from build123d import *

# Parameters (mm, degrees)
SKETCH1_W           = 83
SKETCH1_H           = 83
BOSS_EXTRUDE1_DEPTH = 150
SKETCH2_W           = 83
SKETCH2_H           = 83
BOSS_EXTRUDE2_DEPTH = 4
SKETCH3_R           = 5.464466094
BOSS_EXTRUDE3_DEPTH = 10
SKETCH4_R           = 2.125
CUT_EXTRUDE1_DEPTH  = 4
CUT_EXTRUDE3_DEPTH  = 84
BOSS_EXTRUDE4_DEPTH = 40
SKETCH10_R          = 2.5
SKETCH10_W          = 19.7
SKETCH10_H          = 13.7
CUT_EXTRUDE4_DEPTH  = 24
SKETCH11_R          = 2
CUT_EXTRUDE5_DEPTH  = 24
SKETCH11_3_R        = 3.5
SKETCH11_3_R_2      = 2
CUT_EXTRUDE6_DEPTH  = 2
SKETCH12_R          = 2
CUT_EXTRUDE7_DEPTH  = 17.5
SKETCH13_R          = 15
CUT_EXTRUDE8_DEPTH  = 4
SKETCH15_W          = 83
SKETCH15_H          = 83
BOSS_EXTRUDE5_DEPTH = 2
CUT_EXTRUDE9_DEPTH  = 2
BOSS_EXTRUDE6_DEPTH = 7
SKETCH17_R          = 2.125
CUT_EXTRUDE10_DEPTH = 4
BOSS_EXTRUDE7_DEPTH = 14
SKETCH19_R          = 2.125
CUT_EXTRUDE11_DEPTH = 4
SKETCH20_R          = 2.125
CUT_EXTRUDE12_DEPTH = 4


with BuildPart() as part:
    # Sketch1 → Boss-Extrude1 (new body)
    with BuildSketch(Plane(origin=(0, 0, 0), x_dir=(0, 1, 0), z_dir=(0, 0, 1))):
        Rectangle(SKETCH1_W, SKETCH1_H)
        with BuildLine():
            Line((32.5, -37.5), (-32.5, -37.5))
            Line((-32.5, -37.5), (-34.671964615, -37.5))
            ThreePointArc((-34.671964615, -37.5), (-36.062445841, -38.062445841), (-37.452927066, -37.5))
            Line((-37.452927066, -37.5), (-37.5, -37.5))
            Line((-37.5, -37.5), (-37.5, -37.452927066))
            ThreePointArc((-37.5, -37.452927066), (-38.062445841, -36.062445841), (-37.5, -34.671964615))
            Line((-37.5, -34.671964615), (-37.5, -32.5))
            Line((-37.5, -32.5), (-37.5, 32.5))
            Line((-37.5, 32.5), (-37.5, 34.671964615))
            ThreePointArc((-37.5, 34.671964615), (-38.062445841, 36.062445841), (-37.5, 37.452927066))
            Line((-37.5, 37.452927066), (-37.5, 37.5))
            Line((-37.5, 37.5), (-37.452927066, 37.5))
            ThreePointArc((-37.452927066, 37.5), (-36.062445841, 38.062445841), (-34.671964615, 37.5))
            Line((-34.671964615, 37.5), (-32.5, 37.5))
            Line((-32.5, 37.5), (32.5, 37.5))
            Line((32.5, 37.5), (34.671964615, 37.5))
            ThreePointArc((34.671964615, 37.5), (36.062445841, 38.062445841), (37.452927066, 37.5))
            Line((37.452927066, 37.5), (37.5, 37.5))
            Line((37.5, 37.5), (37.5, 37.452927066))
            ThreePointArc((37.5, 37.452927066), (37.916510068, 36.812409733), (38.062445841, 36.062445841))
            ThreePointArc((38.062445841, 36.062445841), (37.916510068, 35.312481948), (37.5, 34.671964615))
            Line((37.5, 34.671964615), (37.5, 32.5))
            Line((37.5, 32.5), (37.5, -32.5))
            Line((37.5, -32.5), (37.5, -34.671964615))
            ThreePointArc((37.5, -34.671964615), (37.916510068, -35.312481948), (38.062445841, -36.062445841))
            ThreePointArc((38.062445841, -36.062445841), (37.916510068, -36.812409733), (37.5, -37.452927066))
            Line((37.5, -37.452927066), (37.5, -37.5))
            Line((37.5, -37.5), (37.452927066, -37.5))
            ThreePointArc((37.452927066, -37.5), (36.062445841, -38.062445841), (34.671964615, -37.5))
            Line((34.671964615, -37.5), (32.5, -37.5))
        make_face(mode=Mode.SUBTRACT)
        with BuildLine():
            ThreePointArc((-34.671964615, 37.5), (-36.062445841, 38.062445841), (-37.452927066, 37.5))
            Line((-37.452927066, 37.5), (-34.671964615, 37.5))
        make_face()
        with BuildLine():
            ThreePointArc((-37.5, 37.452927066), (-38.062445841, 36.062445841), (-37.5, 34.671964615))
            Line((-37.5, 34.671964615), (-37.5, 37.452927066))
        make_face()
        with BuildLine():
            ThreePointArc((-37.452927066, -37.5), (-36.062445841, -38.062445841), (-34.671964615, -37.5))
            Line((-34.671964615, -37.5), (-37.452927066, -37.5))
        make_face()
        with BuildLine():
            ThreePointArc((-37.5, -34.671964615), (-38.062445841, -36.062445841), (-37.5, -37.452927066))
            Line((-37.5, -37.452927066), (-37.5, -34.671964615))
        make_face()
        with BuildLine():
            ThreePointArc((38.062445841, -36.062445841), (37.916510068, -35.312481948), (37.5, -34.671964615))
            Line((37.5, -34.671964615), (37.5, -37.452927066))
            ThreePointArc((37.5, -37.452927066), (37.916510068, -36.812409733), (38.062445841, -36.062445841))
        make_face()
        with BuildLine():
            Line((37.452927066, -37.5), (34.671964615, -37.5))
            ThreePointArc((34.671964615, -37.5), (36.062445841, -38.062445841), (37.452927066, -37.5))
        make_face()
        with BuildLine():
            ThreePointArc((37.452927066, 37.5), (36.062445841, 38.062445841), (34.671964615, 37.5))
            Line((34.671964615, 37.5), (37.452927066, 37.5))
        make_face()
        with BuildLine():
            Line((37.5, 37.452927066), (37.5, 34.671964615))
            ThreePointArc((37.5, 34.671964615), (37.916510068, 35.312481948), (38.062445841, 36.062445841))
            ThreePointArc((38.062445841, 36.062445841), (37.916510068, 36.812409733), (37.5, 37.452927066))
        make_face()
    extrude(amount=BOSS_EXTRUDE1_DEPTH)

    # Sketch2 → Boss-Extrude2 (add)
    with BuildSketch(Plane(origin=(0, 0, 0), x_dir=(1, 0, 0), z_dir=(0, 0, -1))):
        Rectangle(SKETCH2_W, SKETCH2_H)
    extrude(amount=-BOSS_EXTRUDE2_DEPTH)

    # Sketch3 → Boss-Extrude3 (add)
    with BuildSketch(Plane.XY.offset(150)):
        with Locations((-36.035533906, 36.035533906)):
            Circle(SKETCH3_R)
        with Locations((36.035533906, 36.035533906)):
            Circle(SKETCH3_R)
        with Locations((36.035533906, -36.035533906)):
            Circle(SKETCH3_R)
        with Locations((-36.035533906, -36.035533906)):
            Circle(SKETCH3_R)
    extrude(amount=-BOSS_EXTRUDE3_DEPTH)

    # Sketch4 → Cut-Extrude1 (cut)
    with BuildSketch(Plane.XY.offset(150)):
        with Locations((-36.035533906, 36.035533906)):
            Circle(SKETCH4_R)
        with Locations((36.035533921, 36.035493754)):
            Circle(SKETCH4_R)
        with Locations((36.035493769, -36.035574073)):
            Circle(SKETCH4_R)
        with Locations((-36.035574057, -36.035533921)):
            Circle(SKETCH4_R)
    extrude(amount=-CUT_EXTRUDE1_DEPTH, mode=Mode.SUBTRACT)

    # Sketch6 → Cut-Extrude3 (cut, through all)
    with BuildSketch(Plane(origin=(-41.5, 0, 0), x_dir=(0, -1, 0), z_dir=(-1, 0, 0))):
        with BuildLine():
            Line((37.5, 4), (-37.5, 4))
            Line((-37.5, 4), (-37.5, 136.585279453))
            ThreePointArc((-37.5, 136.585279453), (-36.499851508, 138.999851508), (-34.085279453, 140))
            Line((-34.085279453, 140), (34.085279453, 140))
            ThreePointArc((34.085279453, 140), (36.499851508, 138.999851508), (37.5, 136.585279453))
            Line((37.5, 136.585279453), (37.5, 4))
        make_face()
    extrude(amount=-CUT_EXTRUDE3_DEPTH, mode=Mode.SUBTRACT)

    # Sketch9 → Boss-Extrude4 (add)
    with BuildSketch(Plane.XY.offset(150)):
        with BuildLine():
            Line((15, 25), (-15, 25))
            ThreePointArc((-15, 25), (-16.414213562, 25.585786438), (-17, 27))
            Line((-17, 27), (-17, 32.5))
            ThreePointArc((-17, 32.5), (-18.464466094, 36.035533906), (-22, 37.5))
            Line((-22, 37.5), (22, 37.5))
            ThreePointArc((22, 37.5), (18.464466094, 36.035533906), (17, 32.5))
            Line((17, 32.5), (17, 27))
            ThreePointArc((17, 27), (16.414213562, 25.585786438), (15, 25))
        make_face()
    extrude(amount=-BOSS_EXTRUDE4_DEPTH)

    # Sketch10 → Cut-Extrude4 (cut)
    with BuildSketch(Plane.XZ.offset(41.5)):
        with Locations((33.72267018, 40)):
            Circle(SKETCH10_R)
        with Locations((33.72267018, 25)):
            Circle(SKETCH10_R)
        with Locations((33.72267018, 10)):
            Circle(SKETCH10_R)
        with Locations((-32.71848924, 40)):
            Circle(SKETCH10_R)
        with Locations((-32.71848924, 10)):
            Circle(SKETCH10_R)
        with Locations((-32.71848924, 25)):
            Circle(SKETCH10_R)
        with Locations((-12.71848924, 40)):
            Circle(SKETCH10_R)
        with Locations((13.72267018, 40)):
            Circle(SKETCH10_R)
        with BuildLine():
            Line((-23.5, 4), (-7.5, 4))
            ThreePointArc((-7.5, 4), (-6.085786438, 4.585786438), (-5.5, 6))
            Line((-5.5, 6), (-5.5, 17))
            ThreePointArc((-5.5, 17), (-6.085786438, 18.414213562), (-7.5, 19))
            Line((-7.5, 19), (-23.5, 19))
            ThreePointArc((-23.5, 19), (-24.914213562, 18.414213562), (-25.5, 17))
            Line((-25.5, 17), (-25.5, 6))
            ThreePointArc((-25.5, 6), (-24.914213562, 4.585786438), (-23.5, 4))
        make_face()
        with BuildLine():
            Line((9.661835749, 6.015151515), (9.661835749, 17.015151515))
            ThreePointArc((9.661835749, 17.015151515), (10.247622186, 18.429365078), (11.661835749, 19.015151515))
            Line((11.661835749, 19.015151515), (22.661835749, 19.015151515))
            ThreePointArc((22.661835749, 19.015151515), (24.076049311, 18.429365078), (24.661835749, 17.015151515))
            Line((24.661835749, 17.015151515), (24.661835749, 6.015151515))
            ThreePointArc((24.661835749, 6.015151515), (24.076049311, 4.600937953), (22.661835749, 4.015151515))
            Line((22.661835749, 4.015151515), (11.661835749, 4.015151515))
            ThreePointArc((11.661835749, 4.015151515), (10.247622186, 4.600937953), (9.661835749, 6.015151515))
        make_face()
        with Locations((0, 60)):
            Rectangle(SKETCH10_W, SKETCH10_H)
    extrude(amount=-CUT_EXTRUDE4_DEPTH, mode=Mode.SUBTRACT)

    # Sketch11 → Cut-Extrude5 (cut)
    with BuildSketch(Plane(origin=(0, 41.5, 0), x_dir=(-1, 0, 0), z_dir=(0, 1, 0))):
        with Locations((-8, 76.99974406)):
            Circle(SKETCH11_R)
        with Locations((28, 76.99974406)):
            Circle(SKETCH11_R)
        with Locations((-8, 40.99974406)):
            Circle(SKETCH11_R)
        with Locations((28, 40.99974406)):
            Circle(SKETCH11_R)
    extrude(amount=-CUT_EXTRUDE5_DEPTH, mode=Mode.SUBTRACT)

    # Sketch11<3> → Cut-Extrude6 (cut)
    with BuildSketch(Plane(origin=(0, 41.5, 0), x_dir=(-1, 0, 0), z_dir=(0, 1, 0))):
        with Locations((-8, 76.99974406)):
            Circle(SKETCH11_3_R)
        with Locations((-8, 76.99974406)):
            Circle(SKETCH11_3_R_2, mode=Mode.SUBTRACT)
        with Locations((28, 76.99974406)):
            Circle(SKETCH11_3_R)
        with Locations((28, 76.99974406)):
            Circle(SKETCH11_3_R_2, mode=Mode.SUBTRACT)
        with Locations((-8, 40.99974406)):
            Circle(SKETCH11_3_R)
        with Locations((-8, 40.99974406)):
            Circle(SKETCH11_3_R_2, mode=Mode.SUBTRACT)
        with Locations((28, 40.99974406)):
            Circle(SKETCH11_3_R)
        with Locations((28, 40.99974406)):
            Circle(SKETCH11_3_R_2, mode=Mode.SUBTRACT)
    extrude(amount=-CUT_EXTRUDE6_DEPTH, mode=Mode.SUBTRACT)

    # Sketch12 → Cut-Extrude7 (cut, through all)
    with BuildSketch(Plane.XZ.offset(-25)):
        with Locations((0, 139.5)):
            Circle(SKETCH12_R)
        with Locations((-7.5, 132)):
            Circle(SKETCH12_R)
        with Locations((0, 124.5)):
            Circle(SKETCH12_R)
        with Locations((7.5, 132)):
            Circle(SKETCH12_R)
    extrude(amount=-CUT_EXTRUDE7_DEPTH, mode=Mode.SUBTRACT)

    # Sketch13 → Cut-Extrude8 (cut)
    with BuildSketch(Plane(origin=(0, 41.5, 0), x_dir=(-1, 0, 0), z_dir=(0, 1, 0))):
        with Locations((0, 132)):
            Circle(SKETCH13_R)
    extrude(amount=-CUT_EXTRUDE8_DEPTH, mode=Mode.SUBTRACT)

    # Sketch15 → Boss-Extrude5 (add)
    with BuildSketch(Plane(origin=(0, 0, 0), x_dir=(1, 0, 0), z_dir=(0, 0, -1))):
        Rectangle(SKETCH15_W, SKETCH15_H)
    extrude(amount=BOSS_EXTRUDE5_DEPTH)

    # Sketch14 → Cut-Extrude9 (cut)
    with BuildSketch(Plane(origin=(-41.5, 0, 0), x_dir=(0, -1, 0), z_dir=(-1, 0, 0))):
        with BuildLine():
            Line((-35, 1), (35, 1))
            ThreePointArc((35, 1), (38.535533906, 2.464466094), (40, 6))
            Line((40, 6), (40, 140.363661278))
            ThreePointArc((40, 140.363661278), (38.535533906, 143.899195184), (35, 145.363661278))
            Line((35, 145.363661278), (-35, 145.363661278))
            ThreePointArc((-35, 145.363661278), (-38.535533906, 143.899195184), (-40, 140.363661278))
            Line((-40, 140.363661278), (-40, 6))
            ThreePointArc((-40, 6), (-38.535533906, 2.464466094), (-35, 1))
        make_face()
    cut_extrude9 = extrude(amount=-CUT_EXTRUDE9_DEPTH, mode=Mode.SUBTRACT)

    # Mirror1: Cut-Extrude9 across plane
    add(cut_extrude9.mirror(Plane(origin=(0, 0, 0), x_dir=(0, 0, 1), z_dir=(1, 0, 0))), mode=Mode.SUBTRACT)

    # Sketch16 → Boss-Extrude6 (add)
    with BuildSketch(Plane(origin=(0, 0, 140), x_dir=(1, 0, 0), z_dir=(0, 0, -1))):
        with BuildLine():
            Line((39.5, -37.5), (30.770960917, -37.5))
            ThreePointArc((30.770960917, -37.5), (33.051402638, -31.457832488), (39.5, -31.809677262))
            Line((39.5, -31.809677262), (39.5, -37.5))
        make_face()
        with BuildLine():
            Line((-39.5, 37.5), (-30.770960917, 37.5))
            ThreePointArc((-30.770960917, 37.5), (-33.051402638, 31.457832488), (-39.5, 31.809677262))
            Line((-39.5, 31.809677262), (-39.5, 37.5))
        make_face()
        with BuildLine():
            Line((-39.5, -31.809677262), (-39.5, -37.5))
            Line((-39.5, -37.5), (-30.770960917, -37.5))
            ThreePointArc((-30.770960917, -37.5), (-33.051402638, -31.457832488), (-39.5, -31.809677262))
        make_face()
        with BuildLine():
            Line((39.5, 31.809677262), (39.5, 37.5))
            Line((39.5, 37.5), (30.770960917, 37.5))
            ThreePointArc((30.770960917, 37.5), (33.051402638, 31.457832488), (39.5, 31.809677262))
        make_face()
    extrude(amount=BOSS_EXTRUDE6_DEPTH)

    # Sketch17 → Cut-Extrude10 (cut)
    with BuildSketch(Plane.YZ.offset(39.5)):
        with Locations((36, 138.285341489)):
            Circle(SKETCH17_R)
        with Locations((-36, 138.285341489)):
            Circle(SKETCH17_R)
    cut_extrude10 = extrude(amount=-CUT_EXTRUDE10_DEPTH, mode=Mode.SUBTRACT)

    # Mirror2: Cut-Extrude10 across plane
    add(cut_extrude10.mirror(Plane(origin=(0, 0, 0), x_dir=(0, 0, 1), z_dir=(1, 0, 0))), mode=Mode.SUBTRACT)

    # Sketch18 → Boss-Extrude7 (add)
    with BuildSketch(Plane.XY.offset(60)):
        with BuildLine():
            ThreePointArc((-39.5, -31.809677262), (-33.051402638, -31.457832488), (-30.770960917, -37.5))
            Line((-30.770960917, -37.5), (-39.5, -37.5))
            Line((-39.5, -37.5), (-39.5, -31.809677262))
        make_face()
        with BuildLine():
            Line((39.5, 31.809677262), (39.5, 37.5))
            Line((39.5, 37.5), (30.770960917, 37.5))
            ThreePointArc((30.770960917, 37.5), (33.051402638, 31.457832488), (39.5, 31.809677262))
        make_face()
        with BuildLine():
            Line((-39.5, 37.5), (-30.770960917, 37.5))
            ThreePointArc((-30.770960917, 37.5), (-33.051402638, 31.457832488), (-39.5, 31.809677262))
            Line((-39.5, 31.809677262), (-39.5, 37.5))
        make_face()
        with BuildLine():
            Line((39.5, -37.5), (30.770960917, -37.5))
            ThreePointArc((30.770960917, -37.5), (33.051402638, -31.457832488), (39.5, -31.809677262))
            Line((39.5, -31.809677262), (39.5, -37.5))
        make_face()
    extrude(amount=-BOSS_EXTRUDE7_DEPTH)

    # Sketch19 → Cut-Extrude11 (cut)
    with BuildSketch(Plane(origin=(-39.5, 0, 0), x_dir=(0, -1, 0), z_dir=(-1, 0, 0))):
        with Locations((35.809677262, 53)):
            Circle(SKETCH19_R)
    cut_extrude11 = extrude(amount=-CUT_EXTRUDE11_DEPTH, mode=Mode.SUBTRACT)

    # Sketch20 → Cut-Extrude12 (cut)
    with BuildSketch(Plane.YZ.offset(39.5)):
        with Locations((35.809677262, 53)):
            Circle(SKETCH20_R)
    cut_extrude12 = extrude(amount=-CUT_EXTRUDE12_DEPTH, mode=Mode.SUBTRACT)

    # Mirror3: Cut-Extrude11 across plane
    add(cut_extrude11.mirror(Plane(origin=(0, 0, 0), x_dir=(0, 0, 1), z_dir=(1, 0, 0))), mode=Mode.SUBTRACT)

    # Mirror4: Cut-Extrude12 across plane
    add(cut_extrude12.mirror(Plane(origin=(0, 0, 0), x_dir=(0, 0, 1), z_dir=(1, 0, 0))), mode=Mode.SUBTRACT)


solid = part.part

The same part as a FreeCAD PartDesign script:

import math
import FreeCAD as App
import Part
import Sketcher

V = App.Vector


def add_polygon(sketch, points):
    """Adds a closed chain of lines whose ends are joined by coincident constraints."""
    first, n = sketch.GeometryCount, len(points)
    for a, b in zip(points, points[1:] + points[:1]):
        sketch.addGeometry(Part.LineSegment(App.Vector(*a, 0), App.Vector(*b, 0)), False)
    for i in range(n):
        sketch.addConstraint(Sketcher.Constraint("Coincident", first + i, 2, first + (i + 1) % n, 1))

doc = App.newDocument("Part")
body = doc.addObject("PartDesign::Body", "Body")

# Sketch on XY plane
sketch1 = body.newObject("Sketcher::SketchObject", "Sketch")
sketch1.AttachmentSupport = (doc.getObject("XY_Plane"), [""])
sketch1.MapMode = "FlatFace"
add_polygon(sketch1, [(-42, -42), (42, -42), (42, 42), (-42, 42)])  # lines 0-3
add_polygon(sketch1, [(38, -38), (-38, -38), (-38, 38), (38, 38)])  # lines 4-7
sketch1.addConstraint(Sketcher.Constraint("Horizontal", 0))
sketch1.addConstraint(Sketcher.Constraint("Vertical", 1))
sketch1.addConstraint(Sketcher.Constraint("Horizontal", 2))
sketch1.addConstraint(Sketcher.Constraint("Vertical", 3))
sketch1.addConstraint(Sketcher.Constraint("Horizontal", 4))
sketch1.addConstraint(Sketcher.Constraint("Vertical", 5))
sketch1.addConstraint(Sketcher.Constraint("Horizontal", 6))
sketch1.addConstraint(Sketcher.Constraint("Vertical", 7))
sketch1.addConstraint(Sketcher.Constraint("Symmetric", 0, 2, 2, 2, -1, 1))
sketch1.addConstraint(Sketcher.Constraint("Symmetric", 4, 2, 6, 2, -1, 1))
sketch1.addConstraint(Sketcher.Constraint("Equal", 2, 1))
sketch1.addConstraint(Sketcher.Constraint("Equal", 6, 5))
sketch1.addConstraint(Sketcher.Constraint("DistanceX", 0, 1, 0, 2, 83.0))
sketch1.addConstraint(Sketcher.Constraint("DistanceX", 4, 2, 4, 1, 75.0))
pad1 = body.newObject("PartDesign::Pad", "Pad")
pad1.Profile = sketch1
pad1.Length = 150

# Sketch on XY plane
sketch2 = body.newObject("Sketcher::SketchObject", "Sketch001")
sketch2.AttachmentSupport = (doc.getObject("XY_Plane"), [""])
sketch2.MapMode = "FlatFace"
add_polygon(sketch2, [(-42, -42), (-42, 42), (42, 42), (42, -42)])  # lines 0-3
sketch2.addConstraint(Sketcher.Constraint("Vertical", 0))
sketch2.addConstraint(Sketcher.Constraint("Horizontal", 1))
sketch2.addConstraint(Sketcher.Constraint("Vertical", 2))
sketch2.addConstraint(Sketcher.Constraint("Horizontal", 3))
sketch2.addConstraint(Sketcher.Constraint("Symmetric", 0, 2, 2, 2, -1, 1))
sketch2.addConstraint(Sketcher.Constraint("Equal", 3, 0))
sketch2.addConstraint(Sketcher.Constraint("DistanceX", 1, 1, 1, 2, 83.0))
pad2 = body.newObject("PartDesign::Pad", "Pad001")
pad2.Profile = sketch2
pad2.Length = 4

# Sketch on XY plane
sketch3 = body.newObject("Sketcher::SketchObject", "Sketch002")
sketch3.AttachmentSupport = (doc.getObject("XY_Plane"), [""])
sketch3.MapMode = "FlatFace"
sketch3.AttachmentOffset = App.Placement(V(0, 0, 150), App.Rotation())
sketch3.addGeometry(Part.Circle(V(-36, 36, 0), V(0, 0, 1), 5), False)
sketch3.addGeometry(Part.Circle(V(36, 36, 0), V(0, 0, 1), 5), False)
sketch3.addGeometry(Part.Circle(V(36, -36, 0), V(0, 0, 1), 5), False)
sketch3.addGeometry(Part.Circle(V(-36, -36, 0), V(0, 0, 1), 5), False)
sketch3.addConstraint(Sketcher.Constraint("Equal", 0, 1))
sketch3.addConstraint(Sketcher.Constraint("Equal", 1, 2))
sketch3.addConstraint(Sketcher.Constraint("Equal", 2, 3))
sketch3.addConstraint(Sketcher.Constraint("Symmetric", 0, 3, 2, 3, -1, 1))
sketch3.addConstraint(Sketcher.Constraint("Symmetric", 1, 3, 3, 3, -1, 1))
sketch3.addConstraint(Sketcher.Constraint("Symmetric", 0, 3, 1, 3, -2))
sketch3.addConstraint(Sketcher.Constraint("Diameter", 0, 10.928932))
sketch3.addConstraint(Sketcher.Constraint("DistanceX", 0, 3, -1, 1, 36.035534))
sketch3.addConstraint(Sketcher.Constraint("DistanceY", -1, 1, 0, 3, 36.035534))
pad3 = body.newObject("PartDesign::Pad", "Pad002")
pad3.Profile = sketch3
pad3.Length = 10
pad3.Reversed = True

# Sketch on XY plane
sketch4 = body.newObject("Sketcher::SketchObject", "Sketch003")
sketch4.AttachmentSupport = (doc.getObject("XY_Plane"), [""])
sketch4.MapMode = "FlatFace"
sketch4.AttachmentOffset = App.Placement(V(0, 0, 150), App.Rotation())
sketch4.addGeometry(Part.Circle(V(-36, 36, 0), V(0, 0, 1), 2.1), False)
sketch4.addGeometry(Part.Circle(V(36, 36, 0), V(0, 0, 1), 2.1), False)
sketch4.addGeometry(Part.Circle(V(36, -36, 0), V(0, 0, 1), 2.1), False)
sketch4.addGeometry(Part.Circle(V(-36, -36, 0), V(0, 0, 1), 2.1), False)
sketch4.addConstraint(Sketcher.Constraint("Equal", 0, 1))
sketch4.addConstraint(Sketcher.Constraint("Equal", 1, 2))
sketch4.addConstraint(Sketcher.Constraint("Equal", 2, 3))
sketch4.addConstraint(Sketcher.Constraint("Diameter", 0, 4.25))
sketch4.addConstraint(Sketcher.Constraint("DistanceX", 0, 3, -1, 1, 36.035534))
sketch4.addConstraint(Sketcher.Constraint("DistanceY", -1, 1, 0, 3, 36.035534))
sketch4.addConstraint(Sketcher.Constraint("DistanceX", -1, 1, 1, 3, 36.035534))
sketch4.addConstraint(Sketcher.Constraint("DistanceY", -1, 1, 1, 3, 36.035494))
sketch4.addConstraint(Sketcher.Constraint("DistanceX", -1, 1, 2, 3, 36.035494))
sketch4.addConstraint(Sketcher.Constraint("DistanceY", 2, 3, -1, 1, 36.035574))
sketch4.addConstraint(Sketcher.Constraint("DistanceX", 3, 3, -1, 1, 36.035574))
sketch4.addConstraint(Sketcher.Constraint("DistanceY", 3, 3, -1, 1, 36.035534))
pocket1 = body.newObject("PartDesign::Pocket", "Pocket")
pocket1.Profile = sketch4
pocket1.Length = 4

# Sketch on YZ plane
sketch5 = body.newObject("Sketcher::SketchObject", "Sketch004")
sketch5.AttachmentSupport = (doc.getObject("YZ_Plane"), [""])
sketch5.MapMode = "FlatFace"
sketch5.AttachmentOffset = App.Placement(V(0, 0, -41.5), App.Rotation())
sketch5.addGeometry(Part.LineSegment(V(37.5, 4, 0), V(-37.5, 4, 0)), False)
sketch5.addGeometry(Part.LineSegment(V(-37.5, 4, 0), V(-37.5, 136.6, 0)), False)
sketch5.addGeometry(Part.ArcOfCircle(Part.Circle(V(-34.1, 136.6, 0), V(0, 0, 1), 3.4), math.radians(90), math.radians(180)), False)
sketch5.addGeometry(Part.LineSegment(V(-34.1, 140, 0), V(34.1, 140, 0)), False)
sketch5.addGeometry(Part.ArcOfCircle(Part.Circle(V(34.1, 136.6, 0), V(0, 0, 1), 3.4), math.radians(0), math.radians(90)), False)
sketch5.addGeometry(Part.LineSegment(V(37.5, 136.6, 0), V(37.5, 4, 0)), False)
sketch5.addConstraint(Sketcher.Constraint("Coincident", 0, 2, 1, 1))
sketch5.addConstraint(Sketcher.Constraint("Tangent", 1, 2, 2, 2))
sketch5.addConstraint(Sketcher.Constraint("Tangent", 2, 1, 3, 1))
sketch5.addConstraint(Sketcher.Constraint("Tangent", 3, 2, 4, 2))
sketch5.addConstraint(Sketcher.Constraint("Tangent", 4, 1, 5, 1))
sketch5.addConstraint(Sketcher.Constraint("Coincident", 5, 2, 0, 1))
sketch5.addConstraint(Sketcher.Constraint("Horizontal", 0))
sketch5.addConstraint(Sketcher.Constraint("Vertical", 1))
sketch5.addConstraint(Sketcher.Constraint("Horizontal", 3))
sketch5.addConstraint(Sketcher.Constraint("Vertical", 5))
sketch5.addConstraint(Sketcher.Constraint("Equal", 2, 4))
sketch5.addConstraint(Sketcher.Constraint("DistanceX", 0, 2, 0, 1, 75.0))
sketch5.addConstraint(Sketcher.Constraint("DistanceY", -1, 1, 0, 2, 4.0))
sketch5.addConstraint(Sketcher.Constraint("DistanceY", -1, 1, 2, 1, 140.0))
sketch5.addConstraint(Sketcher.Constraint("DistanceX", 0, 2, -1, 1, 37.5))
sketch5.addConstraint(Sketcher.Constraint("Radius", 2, 3.414721))
pocket2 = body.newObject("PartDesign::Pocket", "Pocket001")
pocket2.Profile = sketch5
pocket2.Type = "ThroughAll"
pocket2.Reversed = True

# Sketch on XY plane
sketch6 = body.newObject("Sketcher::SketchObject", "Sketch005")
sketch6.AttachmentSupport = (doc.getObject("XY_Plane"), [""])
sketch6.MapMode = "FlatFace"
sketch6.AttachmentOffset = App.Placement(V(0, 0, 150), App.Rotation())
sketch6.addGeometry(Part.LineSegment(V(-15, 25, 0), V(15, 25, 0)), False)
sketch6.addGeometry(Part.ArcOfCircle(Part.Circle(V(15, 27, 0), V(0, 0, 1), 2), math.radians(-90), math.radians(0)), False)
sketch6.addGeometry(Part.LineSegment(V(17, 27, 0), V(17, 32.5, 0)), False)
sketch6.addGeometry(Part.ArcOfCircle(Part.Circle(V(22, 32.5, 0), V(0, 0, 1), 5), math.radians(90), math.radians(180)), False)
sketch6.addGeometry(Part.LineSegment(V(22, 37.5, 0), V(-22, 37.5, 0)), False)
sketch6.addGeometry(Part.ArcOfCircle(Part.Circle(V(-22, 32.5, 0), V(0, 0, 1), 5), math.radians(0), math.radians(90)), False)
sketch6.addGeometry(Part.LineSegment(V(-17, 32.5, 0), V(-17, 27, 0)), False)
sketch6.addGeometry(Part.ArcOfCircle(Part.Circle(V(-15, 27, 0), V(0, 0, 1), 2), math.radians(-180), math.radians(-90)), False)
sketch6.addConstraint(Sketcher.Constraint("Tangent", 0, 2, 1, 1))
sketch6.addConstraint(Sketcher.Constraint("Tangent", 1, 2, 2, 1))
sketch6.addConstraint(Sketcher.Constraint("Tangent", 2, 2, 3, 2))
sketch6.addConstraint(Sketcher.Constraint("Tangent", 3, 1, 4, 1))
sketch6.addConstraint(Sketcher.Constraint("Tangent", 4, 2, 5, 2))
sketch6.addConstraint(Sketcher.Constraint("Tangent", 5, 1, 6, 1))
sketch6.addConstraint(Sketcher.Constraint("Tangent", 6, 2, 7, 1))
sketch6.addConstraint(Sketcher.Constraint("Tangent", 7, 2, 0, 1))
sketch6.addConstraint(Sketcher.Constraint("Horizontal", 0))
sketch6.addConstraint(Sketcher.Constraint("Vertical", 2))
sketch6.addConstraint(Sketcher.Constraint("Horizontal", 4))
sketch6.addConstraint(Sketcher.Constraint("Vertical", 6))
sketch6.addConstraint(Sketcher.Constraint("Equal", 3, 5))
sketch6.addConstraint(Sketcher.Constraint("Equal", 1, 7))
sketch6.addConstraint(Sketcher.Constraint("Radius", 1, 2.0))
sketch6.addConstraint(Sketcher.Constraint("Radius", 3, 5.0))
sketch6.addConstraint(Sketcher.Constraint("DistanceX", 0, 1, 0, 2, 30.0))
sketch6.addConstraint(Sketcher.Constraint("DistanceY", 2, 1, 2, 2, 5.5))
sketch6.addConstraint(Sketcher.Constraint("DistanceX", -1, 1, 1, 3, 15.0))
sketch6.addConstraint(Sketcher.Constraint("DistanceY", -1, 1, 1, 3, 27.0))
pad4 = body.newObject("PartDesign::Pad", "Pad003")
pad4.Profile = sketch6
pad4.Length = 40
pad4.Reversed = True

# Sketch on XZ plane
sketch7 = body.newObject("Sketcher::SketchObject", "Sketch006")
sketch7.AttachmentSupport = (doc.getObject("XZ_Plane"), [""])
sketch7.MapMode = "FlatFace"
sketch7.AttachmentOffset = App.Placement(V(0, 0, 41.5), App.Rotation())
sketch7.addGeometry(Part.Circle(V(33.7, 40, 0), V(0, 0, 1), 2.5), False)  # 0
sketch7.addGeometry(Part.Circle(V(33.7, 25, 0), V(0, 0, 1), 2.5), False)  # 1
sketch7.addGeometry(Part.Circle(V(33.7, 10, 0), V(0, 0, 1), 2.5), False)  # 2
sketch7.addGeometry(Part.Circle(V(-32.7, 40, 0), V(0, 0, 1), 2.5), False)  # 3
sketch7.addGeometry(Part.Circle(V(-32.7, 10, 0), V(0, 0, 1), 2.5), False)  # 4
sketch7.addGeometry(Part.Circle(V(-32.7, 25, 0), V(0, 0, 1), 2.5), False)  # 5
sketch7.addGeometry(Part.Circle(V(-12.7, 40, 0), V(0, 0, 1), 2.5), False)  # 6
sketch7.addGeometry(Part.Circle(V(13.7, 40, 0), V(0, 0, 1), 2.5), False)  # 7
sketch7.addGeometry(Part.LineSegment(V(-23.5, 4, 0), V(-7.5, 4, 0)), False)  # 8
sketch7.addGeometry(Part.ArcOfCircle(Part.Circle(V(-7.5, 6, 0), V(0, 0, 1), 2), math.radians(-90), math.radians(0)), False)  # 9
sketch7.addGeometry(Part.LineSegment(V(-5.5, 6, 0), V(-5.5, 17, 0)), False)  # 10
sketch7.addGeometry(Part.ArcOfCircle(Part.Circle(V(-7.5, 17, 0), V(0, 0, 1), 2), math.radians(0), math.radians(90)), False)  # 11
sketch7.addGeometry(Part.LineSegment(V(-7.5, 19, 0), V(-23.5, 19, 0)), False)  # 12
sketch7.addGeometry(Part.ArcOfCircle(Part.Circle(V(-23.5, 17, 0), V(0, 0, 1), 2), math.radians(90), math.radians(180)), False)  # 13
sketch7.addGeometry(Part.LineSegment(V(-25.5, 17, 0), V(-25.5, 6, 0)), False)  # 14
sketch7.addGeometry(Part.ArcOfCircle(Part.Circle(V(-23.5, 6, 0), V(0, 0, 1), 2), math.radians(-180), math.radians(-90)), False)  # 15
sketch7.addGeometry(Part.LineSegment(V(9.7, 17, 0), V(9.7, 6, 0)), False)  # 16
sketch7.addGeometry(Part.ArcOfCircle(Part.Circle(V(11.7, 6, 0), V(0, 0, 1), 2), math.radians(180), math.radians(270)), False)  # 17
sketch7.addGeometry(Part.LineSegment(V(11.7, 4, 0), V(22.7, 4, 0)), False)  # 18
sketch7.addGeometry(Part.ArcOfCircle(Part.Circle(V(22.7, 6, 0), V(0, 0, 1), 2), math.radians(-90), math.radians(0)), False)  # 19
sketch7.addGeometry(Part.LineSegment(V(24.7, 6, 0), V(24.7, 17, 0)), False)  # 20
sketch7.addGeometry(Part.ArcOfCircle(Part.Circle(V(22.7, 17, 0), V(0, 0, 1), 2), math.radians(0), math.radians(90)), False)  # 21
sketch7.addGeometry(Part.LineSegment(V(22.7, 19, 0), V(11.7, 19, 0)), False)  # 22
sketch7.addGeometry(Part.ArcOfCircle(Part.Circle(V(11.7, 17, 0), V(0, 0, 1), 2), math.radians(90), math.radians(180)), False)  # 23
add_polygon(sketch7, [(-9.8, 66.8), (-9.8, 53.1), (9.8, 53.1), (9.8, 66.8)])  # lines 24-27
sketch7.addConstraint(Sketcher.Constraint("Tangent", 8, 2, 9, 1))
sketch7.addConstraint(Sketcher.Constraint("Tangent", 9, 2, 10, 1))
sketch7.addConstraint(Sketcher.Constraint("Tangent", 10, 2, 11, 1))
sketch7.addConstraint(Sketcher.Constraint("Tangent", 11, 2, 12, 1))
sketch7.addConstraint(Sketcher.Constraint("Tangent", 12, 2, 13, 1))
sketch7.addConstraint(Sketcher.Constraint("Tangent", 13, 2, 14, 1))
sketch7.addConstraint(Sketcher.Constraint("Tangent", 14, 2, 15, 1))
sketch7.addConstraint(Sketcher.Constraint("Tangent", 15, 2, 8, 1))
sketch7.addConstraint(Sketcher.Constraint("Tangent", 16, 2, 17, 1))
sketch7.addConstraint(Sketcher.Constraint("Tangent", 17, 2, 18, 1))
sketch7.addConstraint(Sketcher.Constraint("Tangent", 18, 2, 19, 1))
sketch7.addConstraint(Sketcher.Constraint("Tangent", 19, 2, 20, 1))
sketch7.addConstraint(Sketcher.Constraint("Tangent", 20, 2, 21, 1))
sketch7.addConstraint(Sketcher.Constraint("Tangent", 21, 2, 22, 1))
sketch7.addConstraint(Sketcher.Constraint("Tangent", 22, 2, 23, 1))
sketch7.addConstraint(Sketcher.Constraint("Tangent", 23, 2, 16, 1))
sketch7.addConstraint(Sketcher.Constraint("Horizontal", 8))
sketch7.addConstraint(Sketcher.Constraint("Vertical", 10))
sketch7.addConstraint(Sketcher.Constraint("Horizontal", 12))
sketch7.addConstraint(Sketcher.Constraint("Vertical", 14))
sketch7.addConstraint(Sketcher.Constraint("Vertical", 16))
sketch7.addConstraint(Sketcher.Constraint("Horizontal", 18))
sketch7.addConstraint(Sketcher.Constraint("Vertical", 20))
sketch7.addConstraint(Sketcher.Constraint("Horizontal", 22))
sketch7.addConstraint(Sketcher.Constraint("Vertical", 24))
sketch7.addConstraint(Sketcher.Constraint("Horizontal", 25))
sketch7.addConstraint(Sketcher.Constraint("Vertical", 26))
sketch7.addConstraint(Sketcher.Constraint("Horizontal", 27))
sketch7.addConstraint(Sketcher.Constraint("Equal", 0, 1))
sketch7.addConstraint(Sketcher.Constraint("Equal", 1, 2))
sketch7.addConstraint(Sketcher.Constraint("Equal", 2, 3))
sketch7.addConstraint(Sketcher.Constraint("Equal", 3, 4))
sketch7.addConstraint(Sketcher.Constraint("Equal", 4, 5))
sketch7.addConstraint(Sketcher.Constraint("Equal", 5, 6))
sketch7.addConstraint(Sketcher.Constraint("Equal", 6, 7))
sketch7.addConstraint(Sketcher.Constraint("Equal", 9, 11))
sketch7.addConstraint(Sketcher.Constraint("Equal", 11, 13))
sketch7.addConstraint(Sketcher.Constraint("Equal", 13, 15))
sketch7.addConstraint(Sketcher.Constraint("Equal", 15, 17))
sketch7.addConstraint(Sketcher.Constraint("Equal", 17, 19))
sketch7.addConstraint(Sketcher.Constraint("Equal", 19, 21))
sketch7.addConstraint(Sketcher.Constraint("Equal", 21, 23))
sketch7.addConstraint(Sketcher.Constraint("Horizontal", 0, 3, 3, 3))
sketch7.addConstraint(Sketcher.Constraint("Horizontal", 2, 3, 4, 3))
sketch7.addConstraint(Sketcher.Constraint("Horizontal", 1, 3, 5, 3))
sketch7.addConstraint(Sketcher.Constraint("Horizontal", 3, 3, 6, 3))
sketch7.addConstraint(Sketcher.Constraint("Horizontal", 6, 3, 7, 3))
sketch7.addConstraint(Sketcher.Constraint("Vertical", 0, 3, 1, 3))
sketch7.addConstraint(Sketcher.Constraint("Vertical", 1, 3, 2, 3))
sketch7.addConstraint(Sketcher.Constraint("Vertical", 3, 3, 4, 3))
sketch7.addConstraint(Sketcher.Constraint("Vertical", 4, 3, 5, 3))
sketch7.addConstraint(Sketcher.Constraint("Equal", 22, 10))
sketch7.addConstraint(Sketcher.Constraint("Equal", 14, 16))
sketch7.addConstraint(Sketcher.Constraint("Diameter", 0, 5.0))
sketch7.addConstraint(Sketcher.Constraint("Radius", 9, 2.0))
sketch7.addConstraint(Sketcher.Constraint("DistanceX", 8, 1, 8, 2, 16.0))
sketch7.addConstraint(Sketcher.Constraint("DistanceX", 18, 1, 18, 2, 11.0))
sketch7.addConstraint(Sketcher.Constraint("DistanceX", 25, 1, 25, 2, 19.7))
sketch7.addConstraint(Sketcher.Constraint("DistanceY", 24, 2, 24, 1, 13.7))
sketch7.addConstraint(Sketcher.Constraint("DistanceY", -1, 1, 0, 3, 40.0))
sketch7.addConstraint(Sketcher.Constraint("DistanceY", -1, 1, 1, 3, 25.0))
sketch7.addConstraint(Sketcher.Constraint("DistanceY", -1, 1, 2, 3, 10.0))
sketch7.addConstraint(Sketcher.Constraint("DistanceY", -1, 1, 9, 3, 6.0))
sketch7.addConstraint(Sketcher.Constraint("DistanceX", 3, 3, 6, 3, 20.0))
sketch7.addConstraint(Sketcher.Constraint("DistanceX", 7, 3, 0, 3, 20.0))
sketch7.addConstraint(Sketcher.Constraint("DistanceX", 9, 3, -1, 1, 7.5))
sketch7.addConstraint(Sketcher.Constraint("DistanceX", 24, 2, -1, 1, 9.85))
sketch7.addConstraint(Sketcher.Constraint("DistanceY", -1, 1, 24, 2, 53.15))
sketch7.addConstraint(Sketcher.Constraint("DistanceX", -1, 1, 0, 3, 33.72267))
sketch7.addConstraint(Sketcher.Constraint("DistanceX", 3, 3, -1, 1, 32.718489))
sketch7.addConstraint(Sketcher.Constraint("DistanceY", -1, 1, 17, 3, 6.015152))
sketch7.addConstraint(Sketcher.Constraint("DistanceX", -1, 1, 17, 3, 11.661836))
pocket3 = body.newObject("PartDesign::Pocket", "Pocket002")
pocket3.Profile = sketch7
pocket3.Length = 24

# Sketch on XZ plane
sketch8 = body.newObject("Sketcher::SketchObject", "Sketch007")
sketch8.AttachmentSupport = (doc.getObject("XZ_Plane"), [""])
sketch8.MapMode = "FlatFace"
sketch8.AttachmentOffset = App.Placement(V(0, 0, -41.5), App.Rotation())
sketch8.addGeometry(Part.Circle(V(8, 77, 0), V(0, 0, 1), 2), False)
sketch8.addGeometry(Part.Circle(V(-28, 77, 0), V(0, 0, 1), 2), False)
sketch8.addGeometry(Part.Circle(V(8, 41, 0), V(0, 0, 1), 2), False)
sketch8.addGeometry(Part.Circle(V(-28, 41, 0), V(0, 0, 1), 2), False)
sketch8.addConstraint(Sketcher.Constraint("Equal", 0, 1))
sketch8.addConstraint(Sketcher.Constraint("Equal", 1, 2))
sketch8.addConstraint(Sketcher.Constraint("Equal", 2, 3))
sketch8.addConstraint(Sketcher.Constraint("Horizontal", 0, 3, 1, 3))
sketch8.addConstraint(Sketcher.Constraint("Horizontal", 2, 3, 3, 3))
sketch8.addConstraint(Sketcher.Constraint("Vertical", 0, 3, 2, 3))
sketch8.addConstraint(Sketcher.Constraint("Vertical", 1, 3, 3, 3))
sketch8.addConstraint(Sketcher.Constraint("Diameter", 0, 4.0))
sketch8.addConstraint(Sketcher.Constraint("DistanceX", -1, 1, 0, 3, 8.0))
sketch8.addConstraint(Sketcher.Constraint("DistanceX", 1, 3, -1, 1, 28.0))
sketch8.addConstraint(Sketcher.Constraint("DistanceY", 2, 3, 0, 3, 36.0))
sketch8.addConstraint(Sketcher.Constraint("DistanceY", -1, 1, 0, 3, 76.999744))
pocket4 = body.newObject("PartDesign::Pocket", "Pocket003")
pocket4.Profile = sketch8
pocket4.Length = 24
pocket4.Reversed = True

# Sketch on XZ plane
sketch9 = body.newObject("Sketcher::SketchObject", "Sketch008")
sketch9.AttachmentSupport = (doc.getObject("XZ_Plane"), [""])
sketch9.MapMode = "FlatFace"
sketch9.AttachmentOffset = App.Placement(V(0, 0, -41.5), App.Rotation())
sketch9.addGeometry(Part.Circle(V(8, 77, 0), V(0, 0, 1), 3.5), False)
sketch9.addGeometry(Part.Circle(V(8, 77, 0), V(0, 0, 1), 2), False)
sketch9.addGeometry(Part.Circle(V(-28, 77, 0), V(0, 0, 1), 3.5), False)
sketch9.addGeometry(Part.Circle(V(-28, 77, 0), V(0, 0, 1), 2), False)
sketch9.addGeometry(Part.Circle(V(8, 41, 0), V(0, 0, 1), 3.5), False)
sketch9.addGeometry(Part.Circle(V(8, 41, 0), V(0, 0, 1), 2), False)
sketch9.addGeometry(Part.Circle(V(-28, 41, 0), V(0, 0, 1), 3.5), False)
sketch9.addGeometry(Part.Circle(V(-28, 41, 0), V(0, 0, 1), 2), False)
sketch9.addConstraint(Sketcher.Constraint("Coincident", 1, 3, 0, 3))
sketch9.addConstraint(Sketcher.Constraint("Coincident", 3, 3, 2, 3))
sketch9.addConstraint(Sketcher.Constraint("Coincident", 5, 3, 4, 3))
sketch9.addConstraint(Sketcher.Constraint("Coincident", 7, 3, 6, 3))
sketch9.addConstraint(Sketcher.Constraint("Equal", 0, 2))
sketch9.addConstraint(Sketcher.Constraint("Equal", 1, 3))
sketch9.addConstraint(Sketcher.Constraint("Equal", 2, 4))
sketch9.addConstraint(Sketcher.Constraint("Equal", 3, 5))
sketch9.addConstraint(Sketcher.Constraint("Equal", 4, 6))
sketch9.addConstraint(Sketcher.Constraint("Equal", 5, 7))
sketch9.addConstraint(Sketcher.Constraint("Horizontal", 1, 3, 2, 3))
sketch9.addConstraint(Sketcher.Constraint("Horizontal", 5, 3, 6, 3))
sketch9.addConstraint(Sketcher.Constraint("Vertical", 1, 3, 4, 3))
sketch9.addConstraint(Sketcher.Constraint("Vertical", 3, 3, 6, 3))
sketch9.addConstraint(Sketcher.Constraint("Diameter", 0, 7.0))
sketch9.addConstraint(Sketcher.Constraint("Diameter", 1, 4.0))
sketch9.addConstraint(Sketcher.Constraint("DistanceX", -1, 1, 0, 3, 8.0))
sketch9.addConstraint(Sketcher.Constraint("DistanceX", 2, 3, -1, 1, 28.0))
sketch9.addConstraint(Sketcher.Constraint("DistanceY", 4, 3, 0, 3, 36.0))
sketch9.addConstraint(Sketcher.Constraint("DistanceY", -1, 1, 0, 3, 76.999744))
pocket5 = body.newObject("PartDesign::Pocket", "Pocket004")
pocket5.Profile = sketch9
pocket5.Length = 2
pocket5.Reversed = True

# Sketch on XZ plane
sketch10 = body.newObject("Sketcher::SketchObject", "Sketch009")
sketch10.AttachmentSupport = (doc.getObject("XZ_Plane"), [""])
sketch10.MapMode = "FlatFace"
sketch10.AttachmentOffset = App.Placement(V(0, 0, -25), App.Rotation())
sketch10.addGeometry(Part.Circle(V(0, 139.5, 0), V(0, 0, 1), 2), False)
sketch10.addGeometry(Part.Circle(V(-7.5, 132, 0), V(0, 0, 1), 2), False)
sketch10.addGeometry(Part.Circle(V(0, 124.5, 0), V(0, 0, 1), 2), False)
sketch10.addGeometry(Part.Circle(V(7.5, 132, 0), V(0, 0, 1), 2), False)
sketch10.addConstraint(Sketcher.Constraint("Equal", 0, 1))
sketch10.addConstraint(Sketcher.Constraint("Equal", 1, 2))
sketch10.addConstraint(Sketcher.Constraint("Equal", 2, 3))
sketch10.addConstraint(Sketcher.Constraint("Symmetric", 1, 3, 3, 3, -2))
sketch10.addConstraint(Sketcher.Constraint("PointOnObject", 0, 3, -2))
sketch10.addConstraint(Sketcher.Constraint("PointOnObject", 2, 3, -2))
sketch10.addConstraint(Sketcher.Constraint("Diameter", 0, 4.0))
sketch10.addConstraint(Sketcher.Constraint("DistanceY", -1, 1, 1, 3, 132.0))
sketch10.addConstraint(Sketcher.Constraint("DistanceY", 2, 3, 0, 3, 15.0))
sketch10.addConstraint(Sketcher.Constraint("DistanceX", 1, 3, 3, 3, 15.0))
sketch10.addConstraint(Sketcher.Constraint("DistanceY", -1, 1, 0, 3, 139.5))
pocket6 = body.newObject("PartDesign::Pocket", "Pocket005")
pocket6.Profile = sketch10
pocket6.Type = "ThroughAll"

# Sketch on XZ plane
sketch11 = body.newObject("Sketcher::SketchObject", "Sketch010")
sketch11.AttachmentSupport = (doc.getObject("XZ_Plane"), [""])
sketch11.MapMode = "FlatFace"
sketch11.AttachmentOffset = App.Placement(V(0, 0, -41.5), App.Rotation())
sketch11.addGeometry(Part.Circle(V(0, 132, 0), V(0, 0, 1), 15), False)
sketch11.addConstraint(Sketcher.Constraint("PointOnObject", 0, 3, -2))
sketch11.addConstraint(Sketcher.Constraint("Diameter", 0, 30.0))
sketch11.addConstraint(Sketcher.Constraint("DistanceY", -1, 1, 0, 3, 132.0))
pocket7 = body.newObject("PartDesign::Pocket", "Pocket006")
pocket7.Profile = sketch11
pocket7.Length = 4
pocket7.Reversed = True

# Sketch on XY plane
sketch12 = body.newObject("Sketcher::SketchObject", "Sketch011")
sketch12.AttachmentSupport = (doc.getObject("XY_Plane"), [""])
sketch12.MapMode = "FlatFace"
add_polygon(sketch12, [(-42, -42), (-42, 42), (42, 42), (42, -42)])  # lines 0-3
sketch12.addConstraint(Sketcher.Constraint("Vertical", 0))
sketch12.addConstraint(Sketcher.Constraint("Horizontal", 1))
sketch12.addConstraint(Sketcher.Constraint("Vertical", 2))
sketch12.addConstraint(Sketcher.Constraint("Horizontal", 3))
sketch12.addConstraint(Sketcher.Constraint("Symmetric", 0, 2, 2, 2, -1, 1))
sketch12.addConstraint(Sketcher.Constraint("Equal", 3, 0))
sketch12.addConstraint(Sketcher.Constraint("DistanceX", 1, 1, 1, 2, 83.0))
pad5 = body.newObject("PartDesign::Pad", "Pad004")
pad5.Profile = sketch12
pad5.Length = 2
pad5.Reversed = True

# Sketch on YZ plane
sketch13 = body.newObject("Sketcher::SketchObject", "Sketch012")
sketch13.AttachmentSupport = (doc.getObject("YZ_Plane"), [""])
sketch13.MapMode = "FlatFace"
sketch13.AttachmentOffset = App.Placement(V(0, 0, -41.5), App.Rotation())
sketch13.addGeometry(Part.LineSegment(V(35, 1, 0), V(-35, 1, 0)), False)
sketch13.addGeometry(Part.ArcOfCircle(Part.Circle(V(-35, 6, 0), V(0, 0, 1), 5), math.radians(180), math.radians(270)), False)
sketch13.addGeometry(Part.LineSegment(V(-40, 6, 0), V(-40, 140, 0)), False)
sketch13.addGeometry(Part.ArcOfCircle(Part.Circle(V(-35, 140, 0), V(0, 0, 1), 5), math.radians(90), math.radians(180)), False)
sketch13.addGeometry(Part.LineSegment(V(-35, 145, 0), V(35, 145, 0)), False)
sketch13.addGeometry(Part.ArcOfCircle(Part.Circle(V(35, 140, 0), V(0, 0, 1), 5), math.radians(0), math.radians(90)), False)
sketch13.addGeometry(Part.LineSegment(V(40, 140, 0), V(40, 6, 0)), False)
sketch13.addGeometry(Part.ArcOfCircle(Part.Circle(V(35, 6, 0), V(0, 0, 1), 5), math.radians(-90), math.radians(0)), False)
sketch13.addConstraint(Sketcher.Constraint("Tangent", 0, 2, 1, 2))
sketch13.addConstraint(Sketcher.Constraint("Tangent", 1, 1, 2, 1))
sketch13.addConstraint(Sketcher.Constraint("Tangent", 2, 2, 3, 2))
sketch13.addConstraint(Sketcher.Constraint("Tangent", 3, 1, 4, 1))
sketch13.addConstraint(Sketcher.Constraint("Tangent", 4, 2, 5, 2))
sketch13.addConstraint(Sketcher.Constraint("Tangent", 5, 1, 6, 1))
sketch13.addConstraint(Sketcher.Constraint("Tangent", 6, 2, 7, 2))
sketch13.addConstraint(Sketcher.Constraint("Tangent", 7, 1, 0, 1))
sketch13.addConstraint(Sketcher.Constraint("Horizontal", 0))
sketch13.addConstraint(Sketcher.Constraint("Vertical", 2))
sketch13.addConstraint(Sketcher.Constraint("Horizontal", 4))
sketch13.addConstraint(Sketcher.Constraint("Vertical", 6))
sketch13.addConstraint(Sketcher.Constraint("Equal", 1, 3))
sketch13.addConstraint(Sketcher.Constraint("Equal", 3, 5))
sketch13.addConstraint(Sketcher.Constraint("Equal", 5, 7))
sketch13.addConstraint(Sketcher.Constraint("Radius", 1, 5.0))
sketch13.addConstraint(Sketcher.Constraint("DistanceX", 0, 2, 0, 1, 70.0))
sketch13.addConstraint(Sketcher.Constraint("DistanceX", 1, 3, -1, 1, 35.0))
sketch13.addConstraint(Sketcher.Constraint("DistanceY", -1, 1, 1, 3, 6.0))
sketch13.addConstraint(Sketcher.Constraint("DistanceY", 2, 1, 2, 2, 134.363661))
pocket8 = body.newObject("PartDesign::Pocket", "Pocket007")
pocket8.Profile = sketch13
pocket8.Length = 2
pocket8.Reversed = True
doc.recompute()

mirrored = body.newObject("PartDesign::Mirrored", "Mirrored")
mirrored.Originals = [pocket8]
mirrored.MirrorPlane = (doc.getObject("YZ_Plane"), [""])
body.Tip = mirrored

# Sketch on XY plane
sketch14 = body.newObject("Sketcher::SketchObject", "Sketch013")
sketch14.AttachmentSupport = (doc.getObject("XY_Plane"), [""])
sketch14.MapMode = "FlatFace"
sketch14.AttachmentOffset = App.Placement(V(0, 0, 140), App.Rotation())
sketch14.addGeometry(Part.LineSegment(V(31, 38, 0), V(40, 38, 0)), False)
sketch14.addGeometry(Part.LineSegment(V(40, 38, 0), V(40, 32, 0)), False)
sketch14.addGeometry(Part.ArcOfCircle(Part.Circle(V(36, 36, 0), V(0, 0, 1), 5), math.radians(164), math.radians(309)), False)
sketch14.addGeometry(Part.LineSegment(V(-31, -38, 0), V(-40, -38, 0)), False)
sketch14.addGeometry(Part.LineSegment(V(-40, -38, 0), V(-40, -32, 0)), False)
sketch14.addGeometry(Part.ArcOfCircle(Part.Circle(V(-36, -36, 0), V(0, 0, 1), 5), math.radians(-16), math.radians(129)), False)
sketch14.addGeometry(Part.LineSegment(V(-40, 32, 0), V(-40, 38, 0)), False)
sketch14.addGeometry(Part.LineSegment(V(-40, 38, 0), V(-31, 38, 0)), False)
sketch14.addGeometry(Part.ArcOfCircle(Part.Circle(V(-36, 36, 0), V(0, 0, 1), 5), math.radians(-129), math.radians(16)), False)
sketch14.addGeometry(Part.LineSegment(V(40, -32, 0), V(40, -38, 0)), False)
sketch14.addGeometry(Part.LineSegment(V(40, -38, 0), V(31, -38, 0)), False)
sketch14.addGeometry(Part.ArcOfCircle(Part.Circle(V(36, -36, 0), V(0, 0, 1), 5), math.radians(51), math.radians(196)), False)
sketch14.addConstraint(Sketcher.Constraint("Coincident", 0, 2, 1, 1))
sketch14.addConstraint(Sketcher.Constraint("Coincident", 1, 2, 2, 2))
sketch14.addConstraint(Sketcher.Constraint("Coincident", 2, 1, 0, 1))
sketch14.addConstraint(Sketcher.Constraint("Coincident", 3, 2, 4, 1))
sketch14.addConstraint(Sketcher.Constraint("Coincident", 4, 2, 5, 2))
sketch14.addConstraint(Sketcher.Constraint("Coincident", 5, 1, 3, 1))
sketch14.addConstraint(Sketcher.Constraint("Coincident", 6, 2, 7, 1))
sketch14.addConstraint(Sketcher.Constraint("Coincident", 7, 2, 8, 2))
sketch14.addConstraint(Sketcher.Constraint("Coincident", 8, 1, 6, 1))
sketch14.addConstraint(Sketcher.Constraint("Coincident", 9, 2, 10, 1))
sketch14.addConstraint(Sketcher.Constraint("Coincident", 10, 2, 11, 2))
sketch14.addConstraint(Sketcher.Constraint("Coincident", 11, 1, 9, 1))
sketch14.addConstraint(Sketcher.Constraint("Horizontal", 0))
sketch14.addConstraint(Sketcher.Constraint("Vertical", 1))
sketch14.addConstraint(Sketcher.Constraint("Horizontal", 3))
sketch14.addConstraint(Sketcher.Constraint("Vertical", 4))
sketch14.addConstraint(Sketcher.Constraint("Vertical", 6))
sketch14.addConstraint(Sketcher.Constraint("Horizontal", 7))
sketch14.addConstraint(Sketcher.Constraint("Vertical", 9))
sketch14.addConstraint(Sketcher.Constraint("Horizontal", 10))
sketch14.addConstraint(Sketcher.Constraint("Equal", 2, 5))
sketch14.addConstraint(Sketcher.Constraint("Equal", 5, 8))
sketch14.addConstraint(Sketcher.Constraint("Equal", 8, 11))
sketch14.addConstraint(Sketcher.Constraint("Symmetric", 2, 3, 5, 3, -1, 1))
sketch14.addConstraint(Sketcher.Constraint("Symmetric", 8, 3, 11, 3, -1, 1))
sketch14.addConstraint(Sketcher.Constraint("Symmetric", 0, 2, 3, 2, -1, 1))
sketch14.addConstraint(Sketcher.Constraint("Symmetric", 6, 2, 9, 2, -1, 1))
sketch14.addConstraint(Sketcher.Constraint("Symmetric", 2, 3, 8, 3, -2))
sketch14.addConstraint(Sketcher.Constraint("Symmetric", 0, 2, 6, 2, -2))
sketch14.addConstraint(Sketcher.Constraint("DistanceY", 3, 2, 2, 1, 75.0))
sketch14.addConstraint(Sketcher.Constraint("DistanceX", 3, 2, 1, 2, 79.0))
sketch14.addConstraint(Sketcher.Constraint("Radius", 2, 5.464466))
sketch14.addConstraint(Sketcher.Constraint("DistanceX", 0, 1, 0, 2, 8.729039))
sketch14.addConstraint(Sketcher.Constraint("DistanceY", 1, 2, 1, 1, 5.690323))
pad6 = body.newObject("PartDesign::Pad", "Pad005")
pad6.Profile = sketch14
pad6.Length = 7
pad6.Reversed = True

# Sketch on YZ plane
sketch15 = body.newObject("Sketcher::SketchObject", "Sketch014")
sketch15.AttachmentSupport = (doc.getObject("YZ_Plane"), [""])
sketch15.MapMode = "FlatFace"
sketch15.AttachmentOffset = App.Placement(V(0, 0, 39.5), App.Rotation())
sketch15.addGeometry(Part.Circle(V(36, 138.3, 0), V(0, 0, 1), 2.1), False)
sketch15.addGeometry(Part.Circle(V(-36, 138.3, 0), V(0, 0, 1), 2.1), False)
sketch15.addConstraint(Sketcher.Constraint("Equal", 0, 1))
sketch15.addConstraint(Sketcher.Constraint("Symmetric", 0, 3, 1, 3, -2))
sketch15.addConstraint(Sketcher.Constraint("Diameter", 0, 4.25))
sketch15.addConstraint(Sketcher.Constraint("DistanceX", -1, 1, 0, 3, 36.0))
sketch15.addConstraint(Sketcher.Constraint("DistanceY", -1, 1, 0, 3, 138.285341))
pocket9 = body.newObject("PartDesign::Pocket", "Pocket008")
pocket9.Profile = sketch15
pocket9.Length = 4
doc.recompute()

mirrored2 = body.newObject("PartDesign::Mirrored", "Mirrored001")
mirrored2.Originals = [pocket9]
mirrored2.MirrorPlane = (doc.getObject("YZ_Plane"), [""])
body.Tip = mirrored2

# Sketch on XY plane
sketch16 = body.newObject("Sketcher::SketchObject", "Sketch015")
sketch16.AttachmentSupport = (doc.getObject("XY_Plane"), [""])
sketch16.MapMode = "FlatFace"
sketch16.AttachmentOffset = App.Placement(V(0, 0, 60), App.Rotation())
sketch16.addGeometry(Part.ArcOfCircle(Part.Circle(V(-36, -36, 0), V(0, 0, 1), 5), math.radians(-16), math.radians(129)), False)
sketch16.addGeometry(Part.LineSegment(V(-40, -32, 0), V(-40, -38, 0)), False)
sketch16.addGeometry(Part.LineSegment(V(-40, -38, 0), V(-31, -38, 0)), False)
sketch16.addGeometry(Part.LineSegment(V(40, 32, 0), V(40, 38, 0)), False)
sketch16.addGeometry(Part.LineSegment(V(40, 38, 0), V(31, 38, 0)), False)
sketch16.addGeometry(Part.ArcOfCircle(Part.Circle(V(36, 36, 0), V(0, 0, 1), 5), math.radians(164), math.radians(309)), False)
sketch16.addGeometry(Part.LineSegment(V(-31, 38, 0), V(-40, 38, 0)), False)
sketch16.addGeometry(Part.LineSegment(V(-40, 38, 0), V(-40, 32, 0)), False)
sketch16.addGeometry(Part.ArcOfCircle(Part.Circle(V(-36, 36, 0), V(0, 0, 1), 5), math.radians(-129), math.radians(16)), False)
sketch16.addGeometry(Part.LineSegment(V(31, -38, 0), V(40, -38, 0)), False)
sketch16.addGeometry(Part.LineSegment(V(40, -38, 0), V(40, -32, 0)), False)
sketch16.addGeometry(Part.ArcOfCircle(Part.Circle(V(36, -36, 0), V(0, 0, 1), 5), math.radians(51), math.radians(196)), False)
sketch16.addConstraint(Sketcher.Constraint("Coincident", 0, 2, 1, 1))
sketch16.addConstraint(Sketcher.Constraint("Coincident", 1, 2, 2, 1))
sketch16.addConstraint(Sketcher.Constraint("Coincident", 2, 2, 0, 1))
sketch16.addConstraint(Sketcher.Constraint("Coincident", 3, 2, 4, 1))
sketch16.addConstraint(Sketcher.Constraint("Coincident", 4, 2, 5, 1))
sketch16.addConstraint(Sketcher.Constraint("Coincident", 5, 2, 3, 1))
sketch16.addConstraint(Sketcher.Constraint("Coincident", 6, 2, 7, 1))
sketch16.addConstraint(Sketcher.Constraint("Coincident", 7, 2, 8, 1))
sketch16.addConstraint(Sketcher.Constraint("Coincident", 8, 2, 6, 1))
sketch16.addConstraint(Sketcher.Constraint("Coincident", 9, 2, 10, 1))
sketch16.addConstraint(Sketcher.Constraint("Coincident", 10, 2, 11, 1))
sketch16.addConstraint(Sketcher.Constraint("Coincident", 11, 2, 9, 1))
sketch16.addConstraint(Sketcher.Constraint("Vertical", 1))
sketch16.addConstraint(Sketcher.Constraint("Horizontal", 2))
sketch16.addConstraint(Sketcher.Constraint("Vertical", 3))
sketch16.addConstraint(Sketcher.Constraint("Horizontal", 4))
sketch16.addConstraint(Sketcher.Constraint("Horizontal", 6))
sketch16.addConstraint(Sketcher.Constraint("Vertical", 7))
sketch16.addConstraint(Sketcher.Constraint("Horizontal", 9))
sketch16.addConstraint(Sketcher.Constraint("Vertical", 10))
sketch16.addConstraint(Sketcher.Constraint("Equal", 0, 5))
sketch16.addConstraint(Sketcher.Constraint("Equal", 5, 8))
sketch16.addConstraint(Sketcher.Constraint("Equal", 8, 11))
sketch16.addConstraint(Sketcher.Constraint("Symmetric", 0, 3, 5, 3, -1, 1))
sketch16.addConstraint(Sketcher.Constraint("Symmetric", 8, 3, 11, 3, -1, 1))
sketch16.addConstraint(Sketcher.Constraint("Symmetric", 1, 2, 3, 2, -1, 1))
sketch16.addConstraint(Sketcher.Constraint("Symmetric", 6, 2, 9, 2, -1, 1))
sketch16.addConstraint(Sketcher.Constraint("Symmetric", 5, 3, 8, 3, -2))
sketch16.addConstraint(Sketcher.Constraint("Symmetric", 3, 2, 6, 2, -2))
sketch16.addConstraint(Sketcher.Constraint("DistanceY", 2, 2, 3, 2, 75.0))
sketch16.addConstraint(Sketcher.Constraint("DistanceX", 0, 2, 3, 2, 79.0))
sketch16.addConstraint(Sketcher.Constraint("Radius", 0, 5.464466))
sketch16.addConstraint(Sketcher.Constraint("DistanceX", 2, 1, 2, 2, 8.729039))
sketch16.addConstraint(Sketcher.Constraint("DistanceY", 1, 2, 1, 1, 5.690323))
pad7 = body.newObject("PartDesign::Pad", "Pad006")
pad7.Profile = sketch16
pad7.Length = 14
pad7.Reversed = True

# Sketch on YZ plane
sketch17 = body.newObject("Sketcher::SketchObject", "Sketch016")
sketch17.AttachmentSupport = (doc.getObject("YZ_Plane"), [""])
sketch17.MapMode = "FlatFace"
sketch17.AttachmentOffset = App.Placement(V(0, 0, -39.5), App.Rotation())
sketch17.addGeometry(Part.Circle(V(-35.8, 53, 0), V(0, 0, 1), 2.1), False)
sketch17.addConstraint(Sketcher.Constraint("Diameter", 0, 4.25))
sketch17.addConstraint(Sketcher.Constraint("DistanceY", -1, 1, 0, 3, 53.0))
sketch17.addConstraint(Sketcher.Constraint("DistanceX", 0, 3, -1, 1, 35.809677))
pocket10 = body.newObject("PartDesign::Pocket", "Pocket009")
pocket10.Profile = sketch17
pocket10.Length = 4
pocket10.Reversed = True

# Sketch on YZ plane
sketch18 = body.newObject("Sketcher::SketchObject", "Sketch017")
sketch18.AttachmentSupport = (doc.getObject("YZ_Plane"), [""])
sketch18.MapMode = "FlatFace"
sketch18.AttachmentOffset = App.Placement(V(0, 0, 39.5), App.Rotation())
sketch18.addGeometry(Part.Circle(V(35.8, 53, 0), V(0, 0, 1), 2.1), False)
sketch18.addConstraint(Sketcher.Constraint("Diameter", 0, 4.25))
sketch18.addConstraint(Sketcher.Constraint("DistanceY", -1, 1, 0, 3, 53.0))
sketch18.addConstraint(Sketcher.Constraint("DistanceX", -1, 1, 0, 3, 35.809677))
pocket11 = body.newObject("PartDesign::Pocket", "Pocket010")
pocket11.Profile = sketch18
pocket11.Length = 4
doc.recompute()

mirrored3 = body.newObject("PartDesign::Mirrored", "Mirrored002")
mirrored3.Originals = [pocket10]
mirrored3.MirrorPlane = (doc.getObject("YZ_Plane"), [""])
body.Tip = mirrored3
doc.recompute()

mirrored4 = body.newObject("PartDesign::Mirrored", "Mirrored003")
mirrored4.Originals = [pocket11]
mirrored4.MirrorPlane = (doc.getObject("YZ_Plane"), [""])
body.Tip = mirrored4

doc.recompute()
